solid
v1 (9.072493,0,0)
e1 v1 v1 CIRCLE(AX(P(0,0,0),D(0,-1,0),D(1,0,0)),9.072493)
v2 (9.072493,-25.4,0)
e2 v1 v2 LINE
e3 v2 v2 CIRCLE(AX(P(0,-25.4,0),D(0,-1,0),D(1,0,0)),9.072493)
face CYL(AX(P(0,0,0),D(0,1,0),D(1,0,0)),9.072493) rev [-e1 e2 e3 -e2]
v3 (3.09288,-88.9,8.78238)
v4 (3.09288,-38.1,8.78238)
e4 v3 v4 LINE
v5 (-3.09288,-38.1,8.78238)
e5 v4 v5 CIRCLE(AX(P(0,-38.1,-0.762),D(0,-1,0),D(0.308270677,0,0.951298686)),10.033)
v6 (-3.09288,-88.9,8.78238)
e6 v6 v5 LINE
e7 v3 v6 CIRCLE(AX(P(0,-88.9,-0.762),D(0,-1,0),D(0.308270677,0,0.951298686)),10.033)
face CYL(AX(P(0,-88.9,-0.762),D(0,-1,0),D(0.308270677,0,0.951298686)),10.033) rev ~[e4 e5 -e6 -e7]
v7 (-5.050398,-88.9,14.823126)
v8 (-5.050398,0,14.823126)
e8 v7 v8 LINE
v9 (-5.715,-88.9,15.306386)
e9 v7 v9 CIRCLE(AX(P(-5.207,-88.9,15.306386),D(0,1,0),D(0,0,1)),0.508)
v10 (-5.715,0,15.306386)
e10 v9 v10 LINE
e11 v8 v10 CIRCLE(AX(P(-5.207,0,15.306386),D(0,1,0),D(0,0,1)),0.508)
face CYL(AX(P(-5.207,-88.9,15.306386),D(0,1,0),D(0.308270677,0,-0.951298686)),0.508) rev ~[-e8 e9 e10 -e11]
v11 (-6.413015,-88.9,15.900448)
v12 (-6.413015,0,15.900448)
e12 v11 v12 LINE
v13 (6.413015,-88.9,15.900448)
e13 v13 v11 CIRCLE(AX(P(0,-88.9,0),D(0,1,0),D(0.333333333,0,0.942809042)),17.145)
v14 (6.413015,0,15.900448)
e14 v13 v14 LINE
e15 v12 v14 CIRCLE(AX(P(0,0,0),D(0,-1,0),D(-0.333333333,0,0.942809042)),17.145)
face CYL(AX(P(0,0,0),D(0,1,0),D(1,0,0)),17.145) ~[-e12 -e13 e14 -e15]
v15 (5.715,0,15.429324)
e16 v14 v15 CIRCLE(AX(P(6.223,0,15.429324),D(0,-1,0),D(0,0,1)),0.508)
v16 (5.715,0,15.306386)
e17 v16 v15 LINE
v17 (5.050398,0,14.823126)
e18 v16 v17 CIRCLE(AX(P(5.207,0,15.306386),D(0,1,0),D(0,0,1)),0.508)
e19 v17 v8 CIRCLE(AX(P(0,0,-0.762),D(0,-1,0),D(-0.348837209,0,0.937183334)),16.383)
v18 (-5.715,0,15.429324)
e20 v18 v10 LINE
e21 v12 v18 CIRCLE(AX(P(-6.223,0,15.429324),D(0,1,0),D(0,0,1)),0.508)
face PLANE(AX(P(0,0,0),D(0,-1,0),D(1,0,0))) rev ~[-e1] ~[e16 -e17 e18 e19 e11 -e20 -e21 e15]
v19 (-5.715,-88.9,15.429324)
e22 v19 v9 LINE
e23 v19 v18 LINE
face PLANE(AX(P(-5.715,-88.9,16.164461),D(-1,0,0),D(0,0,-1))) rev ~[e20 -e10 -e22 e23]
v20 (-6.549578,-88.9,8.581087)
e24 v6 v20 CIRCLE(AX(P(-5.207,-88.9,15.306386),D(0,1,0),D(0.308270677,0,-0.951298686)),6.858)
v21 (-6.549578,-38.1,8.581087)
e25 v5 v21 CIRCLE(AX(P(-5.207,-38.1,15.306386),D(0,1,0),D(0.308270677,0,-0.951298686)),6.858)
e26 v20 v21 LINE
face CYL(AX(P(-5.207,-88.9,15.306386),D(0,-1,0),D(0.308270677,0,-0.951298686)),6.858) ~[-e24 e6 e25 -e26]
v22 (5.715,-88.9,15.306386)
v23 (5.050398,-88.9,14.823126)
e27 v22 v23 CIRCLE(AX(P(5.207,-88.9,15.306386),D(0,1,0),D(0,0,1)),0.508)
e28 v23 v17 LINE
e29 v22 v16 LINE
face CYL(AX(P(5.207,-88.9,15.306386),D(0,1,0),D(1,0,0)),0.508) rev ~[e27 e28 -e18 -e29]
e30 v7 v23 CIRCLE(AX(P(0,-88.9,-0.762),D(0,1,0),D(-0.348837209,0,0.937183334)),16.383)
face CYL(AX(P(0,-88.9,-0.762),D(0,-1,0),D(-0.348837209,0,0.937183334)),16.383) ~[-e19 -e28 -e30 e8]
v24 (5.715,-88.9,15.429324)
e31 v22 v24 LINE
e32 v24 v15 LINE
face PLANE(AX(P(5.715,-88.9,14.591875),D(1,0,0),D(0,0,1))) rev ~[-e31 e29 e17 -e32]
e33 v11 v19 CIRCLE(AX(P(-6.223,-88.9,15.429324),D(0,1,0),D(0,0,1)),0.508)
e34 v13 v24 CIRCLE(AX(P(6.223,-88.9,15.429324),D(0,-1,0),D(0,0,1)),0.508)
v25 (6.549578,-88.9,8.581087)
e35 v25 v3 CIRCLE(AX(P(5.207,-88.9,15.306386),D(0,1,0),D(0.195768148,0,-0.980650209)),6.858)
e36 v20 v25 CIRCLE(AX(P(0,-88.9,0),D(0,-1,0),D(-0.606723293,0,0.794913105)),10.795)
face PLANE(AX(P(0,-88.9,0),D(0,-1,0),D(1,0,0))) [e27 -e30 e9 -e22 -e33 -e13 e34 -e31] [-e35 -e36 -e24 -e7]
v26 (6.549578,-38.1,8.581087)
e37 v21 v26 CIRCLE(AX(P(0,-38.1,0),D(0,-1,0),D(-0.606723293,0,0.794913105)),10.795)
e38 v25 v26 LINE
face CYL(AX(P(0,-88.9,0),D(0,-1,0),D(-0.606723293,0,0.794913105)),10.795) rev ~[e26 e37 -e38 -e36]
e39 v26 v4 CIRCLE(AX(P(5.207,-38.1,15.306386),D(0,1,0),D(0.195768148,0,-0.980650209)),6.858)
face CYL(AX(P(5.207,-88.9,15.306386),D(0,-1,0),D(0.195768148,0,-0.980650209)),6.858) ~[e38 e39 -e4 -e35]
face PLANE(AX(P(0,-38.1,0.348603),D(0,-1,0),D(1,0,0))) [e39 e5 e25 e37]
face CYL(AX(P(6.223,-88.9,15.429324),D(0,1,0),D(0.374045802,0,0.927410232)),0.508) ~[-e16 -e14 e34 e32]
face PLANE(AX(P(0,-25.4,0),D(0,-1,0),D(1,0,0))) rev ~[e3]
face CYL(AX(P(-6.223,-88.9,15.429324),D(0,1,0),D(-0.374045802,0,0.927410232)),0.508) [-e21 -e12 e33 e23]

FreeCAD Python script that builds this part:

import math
import FreeCAD as App
import Part
import Sketcher
from FreeCAD import Vector
Q = App.Units.Quantity


def edges_at(feature, points):
    """Names of the edges that pass closest to the given points."""
    edges = feature.Shape.Edges
    near = lambda p: min(range(len(edges)), key=lambda i: edges[i].distToShape(Part.Vertex(*p))[0])
    return sorted({f"Edge{near(p) + 1}" for p in points})

doc = App.newDocument("Part")
body = doc.addObject("PartDesign::Body", "Body")

sketch1 = doc.addObject("Sketcher::SketchObject", "Sketch")
body.addObject(sketch1)
sketch1.AttachmentSupport = (doc.XZ_Plane, [""])
sketch1.MapMode = "FlatFace"
sketch1.addGeometry(Part.Circle(Vector(0, 0, 0), Vector(0, 0, 1), 17.145), False)
sketch1.addConstraint([
    Sketcher.Constraint("Coincident", 0, 3, -1, 1),
    Sketcher.Constraint("Diameter", 0, Q("1.35 in")),
])
pad1 = doc.addObject("PartDesign::Pad", "Pad")
body.addObject(pad1)
pad1.Profile = sketch1
pad1.Length = Q("3.5 in")

sketch2 = doc.addObject("Sketcher::SketchObject", "Sketch001")
body.addObject(sketch2)
sketch2.AttachmentSupport = (doc.XZ_Plane, [""])
sketch2.MapMode = "FlatFace"
sketch2.addGeometry(Part.Circle(Vector(0, 0, 0), Vector(0, 0, 1), 9.072493), False)
sketch2.addConstraint([
    Sketcher.Constraint("Coincident", 0, 3, -1, 1),
    Sketcher.Constraint("Diameter", 0, 18.144985),
])
pocket1 = doc.addObject("PartDesign::Pocket", "Pocket")
body.addObject(pocket1)
pocket1.Profile = sketch2
pocket1.Length = Q("1 in")
pocket1.Reversed = True

sketch3 = doc.addObject("Sketcher::SketchObject", "Sketch002")
body.addObject(sketch3)
sketch3.AttachmentSupport = (doc.XZ_Plane, [""])
sketch3.MapMode = "FlatFace"
sketch3.AttachmentOffset = App.Placement(Vector(0, 0, 3.5 * 25.4), App.Rotation())
sketch3.addGeometry([
    Part.ArcOfCircle(Part.Circle(Vector(0, -0.762, 0), Vector(0, 0, 1), 16.383), math.radians(69.58379), math.radians(110.41621)),
    Part.LineSegment(Vector(5.715, 14.591875, 0), Vector(5.715, 16.164461, 0)),
    Part.ArcOfCircle(Part.Circle(Vector(0, 0, 0), Vector(0, 0, 1), 17.145), math.radians(70.528779), math.radians(90)),
    Part.ArcOfCircle(Part.Circle(Vector(0, 0, 0), Vector(0, 0, 1), 17.145), math.radians(90), math.radians(109.471221)),
    Part.LineSegment(Vector(-5.715, 16.164461, 0), Vector(-5.715, 14.591875, 0)),
], False)
sketch3.addConstraint([
    Sketcher.Constraint("Coincident", 0, 1, 1, 1),
    Sketcher.Constraint("Coincident", 1, 2, 2, 1),
    Sketcher.Constraint("Tangent", 2, 2, 3, 1),
    Sketcher.Constraint("Coincident", 3, 2, 4, 1),
    Sketcher.Constraint("Coincident", 4, 2, 0, 2),
    Sketcher.Constraint("Vertical", 1),
    Sketcher.Constraint("Vertical", 4),
    Sketcher.Constraint("Coincident", 2, 3, -1, 1),
    Sketcher.Constraint("Equal", 2, 3),
    Sketcher.Constraint("Symmetric", 0, 1, 4, 2, -2),
    Sketcher.Constraint("PointOnObject", 2, 2, -2),
    Sketcher.Constraint("Radius", 0, Q("0.645 in")),
    Sketcher.Constraint("Radius", 2, Q("0.675 in")),
    Sketcher.Constraint("DistanceY", 0, 3, -1, 1, Q("0.03 in")),
    Sketcher.Constraint("DistanceX", 3, 2, 1, 2, Q("0.45 in")),
])
pocket2 = doc.addObject("PartDesign::Pocket", "Pocket001")
body.addObject(pocket2)
pocket2.Profile = sketch3
pocket2.Type = "ThroughAll"
doc.recompute()

fillet = doc.addObject("PartDesign::Fillet", "Fillet")
body.addObject(fillet)
fillet.Base = (pocket2, edges_at(pocket2, [
    (-5.715, -44.45, 16.164),
    (5.715, -44.45, 16.164),
    (-5.715, -44.45, 14.592),
    (5.715, -44.45, 14.592),
]))
fillet.Radius = Q("0.02 in")

sketch4 = doc.addObject("Sketcher::SketchObject", "Sketch003")
body.addObject(sketch4)
sketch4.AttachmentSupport = (doc.XZ_Plane, [""])
sketch4.MapMode = "FlatFace"
sketch4.AttachmentOffset = App.Placement(Vector(0, 0, 3.5 * 25.4), App.Rotation())
sketch4.addGeometry([
    Part.ArcOfCircle(Part.Circle(Vector(-5.207, 15.306386, 0), Vector(0, 0, 1), 6.858), math.radians(-101.2896), math.radians(-72.044956)),
    Part.ArcOfCircle(Part.Circle(Vector(0, 0, 0), Vector(0, 0, 1), 10.795), math.radians(127.352951), math.radians(412.647049)),
    Part.ArcOfCircle(Part.Circle(Vector(5.207, 15.306386, 0), Vector(0, 0, 1), 6.858), math.radians(-107.955044), math.radians(-78.7104)),
    Part.ArcOfCircle(Part.Circle(Vector(0, -0.762, 0), Vector(0, 0, 1), 10.033), math.radians(72.044956), math.radians(107.955044)),
], False)
sketch4.addConstraint([
    Sketcher.Constraint("Coincident", 0, 1, 1, 1),
    Sketcher.Constraint("Coincident", 1, 2, 2, 2),
    Sketcher.Constraint("Tangent", 2, 1, 3, 1),
    Sketcher.Constraint("Tangent", 3, 2, 0, 2),
    Sketcher.Constraint("Coincident", 1, 3, -1, 1),
    Sketcher.Constraint("Equal", 0, 2),
    Sketcher.Constraint("Symmetric", 0, 3, 2, 3, -2),
    Sketcher.Constraint("Radius", 0, Q("0.27 in")),
    Sketcher.Constraint("Radius", 1, Q("0.425 in")),
    Sketcher.Constraint("Radius", 3, Q("0.395 in")),
    Sketcher.Constraint("DistanceY", 3, 3, -1, 1, Q("0.03 in")),
    Sketcher.Constraint("DistanceX", 0, 3, 2, 3, Q("0.41 in")),
])
pocket3 = doc.addObject("PartDesign::Pocket", "Pocket002")
body.addObject(pocket3)
pocket3.Profile = sketch4
pocket3.Length = Q("2 in")

doc.recompute()
